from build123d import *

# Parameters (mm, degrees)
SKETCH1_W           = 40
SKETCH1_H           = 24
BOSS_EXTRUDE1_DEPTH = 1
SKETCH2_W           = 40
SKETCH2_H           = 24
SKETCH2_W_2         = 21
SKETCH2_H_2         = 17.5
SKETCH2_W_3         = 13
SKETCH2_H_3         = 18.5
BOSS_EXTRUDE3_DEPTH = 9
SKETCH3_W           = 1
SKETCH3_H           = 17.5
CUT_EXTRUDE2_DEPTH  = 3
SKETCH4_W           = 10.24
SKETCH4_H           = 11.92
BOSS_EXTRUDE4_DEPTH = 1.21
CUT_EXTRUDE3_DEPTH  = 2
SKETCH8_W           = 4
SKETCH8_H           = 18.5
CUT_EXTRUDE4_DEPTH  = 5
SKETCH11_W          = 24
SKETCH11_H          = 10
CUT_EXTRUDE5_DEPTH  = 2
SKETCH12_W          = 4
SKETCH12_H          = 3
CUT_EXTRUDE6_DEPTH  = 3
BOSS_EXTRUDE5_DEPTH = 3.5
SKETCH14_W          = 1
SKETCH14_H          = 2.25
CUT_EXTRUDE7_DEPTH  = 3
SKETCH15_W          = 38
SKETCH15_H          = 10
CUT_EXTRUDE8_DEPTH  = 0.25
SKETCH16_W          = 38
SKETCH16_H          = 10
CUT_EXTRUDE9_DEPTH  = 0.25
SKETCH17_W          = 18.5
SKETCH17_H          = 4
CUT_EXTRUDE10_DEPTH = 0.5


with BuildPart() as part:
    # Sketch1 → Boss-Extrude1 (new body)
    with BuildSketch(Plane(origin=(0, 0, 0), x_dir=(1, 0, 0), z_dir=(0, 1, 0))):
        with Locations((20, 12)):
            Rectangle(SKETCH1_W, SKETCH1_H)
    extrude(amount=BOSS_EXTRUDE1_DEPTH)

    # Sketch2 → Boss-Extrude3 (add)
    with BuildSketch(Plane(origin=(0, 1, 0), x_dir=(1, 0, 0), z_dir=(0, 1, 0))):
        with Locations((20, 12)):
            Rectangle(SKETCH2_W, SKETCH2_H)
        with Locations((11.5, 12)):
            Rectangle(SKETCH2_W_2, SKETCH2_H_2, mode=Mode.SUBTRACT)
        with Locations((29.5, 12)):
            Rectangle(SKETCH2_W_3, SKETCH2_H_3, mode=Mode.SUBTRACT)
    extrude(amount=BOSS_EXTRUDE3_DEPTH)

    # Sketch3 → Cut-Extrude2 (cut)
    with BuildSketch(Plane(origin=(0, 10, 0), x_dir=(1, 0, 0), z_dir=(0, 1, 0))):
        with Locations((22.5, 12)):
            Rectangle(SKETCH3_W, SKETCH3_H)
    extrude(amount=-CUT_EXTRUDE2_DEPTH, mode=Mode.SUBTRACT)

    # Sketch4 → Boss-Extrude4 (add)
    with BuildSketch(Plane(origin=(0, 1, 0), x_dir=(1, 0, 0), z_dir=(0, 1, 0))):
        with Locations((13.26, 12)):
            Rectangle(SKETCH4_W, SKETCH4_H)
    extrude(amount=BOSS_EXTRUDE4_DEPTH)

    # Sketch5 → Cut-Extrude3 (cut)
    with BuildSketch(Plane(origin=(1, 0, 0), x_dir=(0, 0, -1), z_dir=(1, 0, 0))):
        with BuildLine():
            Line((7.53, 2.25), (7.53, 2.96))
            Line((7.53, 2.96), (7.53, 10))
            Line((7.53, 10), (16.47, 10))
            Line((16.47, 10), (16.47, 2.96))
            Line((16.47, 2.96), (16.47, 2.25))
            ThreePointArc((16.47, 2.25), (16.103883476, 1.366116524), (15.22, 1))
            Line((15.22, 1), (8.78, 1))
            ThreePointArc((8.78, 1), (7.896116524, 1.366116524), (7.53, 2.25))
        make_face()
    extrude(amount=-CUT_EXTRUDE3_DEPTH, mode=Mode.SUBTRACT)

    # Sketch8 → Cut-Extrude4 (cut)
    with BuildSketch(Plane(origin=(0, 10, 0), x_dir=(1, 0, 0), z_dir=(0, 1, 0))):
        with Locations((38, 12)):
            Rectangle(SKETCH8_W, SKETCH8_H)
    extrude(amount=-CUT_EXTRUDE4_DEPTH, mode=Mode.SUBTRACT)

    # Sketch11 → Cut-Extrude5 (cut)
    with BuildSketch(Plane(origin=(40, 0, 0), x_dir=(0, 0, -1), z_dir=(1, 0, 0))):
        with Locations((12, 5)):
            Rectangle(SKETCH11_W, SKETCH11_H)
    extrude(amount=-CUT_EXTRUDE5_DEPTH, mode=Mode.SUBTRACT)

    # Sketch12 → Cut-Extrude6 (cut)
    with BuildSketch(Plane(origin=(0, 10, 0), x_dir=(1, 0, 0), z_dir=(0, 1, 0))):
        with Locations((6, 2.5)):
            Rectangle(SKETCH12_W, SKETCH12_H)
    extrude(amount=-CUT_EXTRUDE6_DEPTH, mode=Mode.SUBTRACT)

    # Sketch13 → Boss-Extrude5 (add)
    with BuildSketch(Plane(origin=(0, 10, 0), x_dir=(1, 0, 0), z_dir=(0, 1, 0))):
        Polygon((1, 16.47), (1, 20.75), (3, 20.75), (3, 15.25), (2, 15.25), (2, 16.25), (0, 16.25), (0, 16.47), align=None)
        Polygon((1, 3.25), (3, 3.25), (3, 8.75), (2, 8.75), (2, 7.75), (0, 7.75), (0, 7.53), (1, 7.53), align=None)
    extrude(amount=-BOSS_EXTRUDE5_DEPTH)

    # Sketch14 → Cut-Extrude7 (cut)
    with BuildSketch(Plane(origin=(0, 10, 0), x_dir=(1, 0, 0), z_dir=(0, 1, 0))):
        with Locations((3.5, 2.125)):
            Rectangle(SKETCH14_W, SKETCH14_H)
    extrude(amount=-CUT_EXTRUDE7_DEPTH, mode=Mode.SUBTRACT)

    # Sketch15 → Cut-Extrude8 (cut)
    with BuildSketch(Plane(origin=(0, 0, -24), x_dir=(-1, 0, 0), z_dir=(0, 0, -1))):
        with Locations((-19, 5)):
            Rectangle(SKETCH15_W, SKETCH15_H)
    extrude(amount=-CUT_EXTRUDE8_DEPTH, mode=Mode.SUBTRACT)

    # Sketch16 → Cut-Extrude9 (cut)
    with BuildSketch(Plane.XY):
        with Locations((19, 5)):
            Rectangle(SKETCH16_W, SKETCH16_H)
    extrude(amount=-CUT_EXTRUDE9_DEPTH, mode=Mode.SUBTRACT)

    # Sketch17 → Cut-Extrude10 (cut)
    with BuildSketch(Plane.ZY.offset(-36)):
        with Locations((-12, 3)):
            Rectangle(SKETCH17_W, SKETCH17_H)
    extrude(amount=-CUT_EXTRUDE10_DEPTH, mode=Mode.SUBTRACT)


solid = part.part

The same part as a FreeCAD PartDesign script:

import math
import FreeCAD as App
import Part
import Sketcher

V = App.Vector


def add_polygon(sketch, points):
    """Adds a closed chain of lines whose ends are joined by coincident constraints."""
    first, n = sketch.GeometryCount, len(points)
    for a, b in zip(points, points[1:] + points[:1]):
        sketch.addGeometry(Part.LineSegment(App.Vector(*a, 0), App.Vector(*b, 0)), False)
    for i in range(n):
        sketch.addConstraint(Sketcher.Constraint("Coincident", first + i, 2, first + (i + 1) % n, 1))

doc = App.newDocument("Part")
body = doc.addObject("PartDesign::Body", "Body")

# Sketch on XZ plane
sketch1 = body.newObject("Sketcher::SketchObject", "Sketch")
sketch1.AttachmentSupport = (doc.getObject("XZ_Plane"), [""])
sketch1.MapMode = "FlatFace"
add_polygon(sketch1, [(0, -24), (0, 0), (40, 0), (40, -24)])  # lines 0-3
sketch1.addConstraint([
    Sketcher.Constraint("Vertical", 0),
    Sketcher.Constraint("Horizontal", 1),
    Sketcher.Constraint("Vertical", 2),
    Sketcher.Constraint("Horizontal", 3),
    Sketcher.Constraint("Coincident", 0, 2, -1, 1),
    Sketcher.Constraint("DistanceX", 1, 1, 1, 2, 40.0),
    Sketcher.Constraint("DistanceY", 0, 1, 0, 2, 24.0),
])
pad1 = body.newObject("PartDesign::Pad", "Pad")
pad1.Profile = sketch1
pad1.Length = 1
pad1.Reversed = True

# Sketch on XZ plane
sketch2 = body.newObject("Sketcher::SketchObject", "Sketch001")
sketch2.AttachmentSupport = (doc.getObject("XZ_Plane"), [""])
sketch2.MapMode = "FlatFace"
sketch2.AttachmentOffset = App.Placement(V(0, 0, -1), App.Rotation())
add_polygon(sketch2, [(0, -24), (0, 0), (40, 0), (40, -24)])  # lines 0-3
add_polygon(sketch2, [(22, -3), (1, -3), (1, -21), (22, -21)])  # lines 4-7
add_polygon(sketch2, [(36, -3), (23, -3), (23, -21), (36, -21)])  # lines 8-11
sketch2.addConstraint([
    Sketcher.Constraint("Vertical", 0),
    Sketcher.Constraint("Horizontal", 1),
    Sketcher.Constraint("Vertical", 2),
    Sketcher.Constraint("Horizontal", 3),
    Sketcher.Constraint("Horizontal", 4),
    Sketcher.Constraint("Vertical", 5),
    Sketcher.Constraint("Horizontal", 6),
    Sketcher.Constraint("Vertical", 7),
    Sketcher.Constraint("Horizontal", 8),
    Sketcher.Constraint("Vertical", 9),
    Sketcher.Constraint("Horizontal", 10),
    Sketcher.Constraint("Vertical", 11),
    Sketcher.Constraint("Coincident", 0, 2, -1, 1),
    Sketcher.Constraint("DistanceX", 1, 1, 1, 2, 40.0),
    Sketcher.Constraint("DistanceX", 4, 2, 4, 1, 21.0),
    Sketcher.Constraint("DistanceX", 8, 2, 8, 1, 13.0),
    Sketcher.Constraint("DistanceY", 0, 1, 0, 2, 24.0),
    Sketcher.Constraint("DistanceY", 5, 2, 5, 1, 17.5),
    Sketcher.Constraint("DistanceY", 9, 2, 9, 1, 18.5),
    Sketcher.Constraint("DistanceX", -1, 1, 4, 2, 1.0),
    Sketcher.Constraint("DistanceX", -1, 1, 8, 2, 23.0),
    Sketcher.Constraint("DistanceY", 6, 2, 8, 2, 18.0),
    Sketcher.Constraint("DistanceY", 4, 2, -1, 1, 3.25),
])
pad2 = body.newObject("PartDesign::Pad", "Pad001")
pad2.Profile = sketch2
pad2.Length = 9
pad2.Reversed = True

# Sketch on XZ plane
sketch3 = body.newObject("Sketcher::SketchObject", "Sketch002")
sketch3.AttachmentSupport = (doc.getObject("XZ_Plane"), [""])
sketch3.MapMode = "FlatFace"
sketch3.AttachmentOffset = App.Placement(V(0, 0, -10), App.Rotation())
add_polygon(sketch3, [(22, -20.8), (22, -3.2), (23, -3.2), (23, -20.8)])  # lines 0-3
sketch3.addConstraint([
    Sketcher.Constraint("Vertical", 0),
    Sketcher.Constraint("Horizontal", 1),
    Sketcher.Constraint("Vertical", 2),
    Sketcher.Constraint("Horizontal", 3),
    Sketcher.Constraint("DistanceX", 1, 1, 1, 2, 1.0),
    Sketcher.Constraint("DistanceY", 0, 1, 0, 2, 17.5),
    Sketcher.Constraint("DistanceX", -1, 1, 0, 2, 22.0),
    Sketcher.Constraint("DistanceY", 0, 2, -1, 1, 3.25),
])
pocket1 = body.newObject("PartDesign::Pocket", "Pocket")
pocket1.Profile = sketch3
pocket1.Length = 3
pocket1.Reversed = True

# Sketch on XZ plane
sketch4 = body.newObject("Sketcher::SketchObject", "Sketch003")
sketch4.AttachmentSupport = (doc.getObject("XZ_Plane"), [""])
sketch4.MapMode = "FlatFace"
sketch4.AttachmentOffset = App.Placement(V(0, 0, -1), App.Rotation())
add_polygon(sketch4, [(8, -18), (8, -6), (18, -6), (18, -18)])  # lines 0-3
sketch4.addConstraint([
    Sketcher.Constraint("Vertical", 0),
    Sketcher.Constraint("Horizontal", 1),
    Sketcher.Constraint("Vertical", 2),
    Sketcher.Constraint("Horizontal", 3),
    Sketcher.Constraint("DistanceX", 1, 1, 1, 2, 10.24),
    Sketcher.Constraint("DistanceY", 0, 1, 0, 2, 11.92),
    Sketcher.Constraint("DistanceX", -1, 1, 0, 2, 8.14),
    Sketcher.Constraint("DistanceY", 0, 2, -1, 1, 6.04),
])
pad3 = body.newObject("PartDesign::Pad", "Pad002")
pad3.Profile = sketch4
pad3.Length = 1.21
pad3.Reversed = True

# Sketch on YZ plane
sketch5 = body.newObject("Sketcher::SketchObject", "Sketch004")
sketch5.AttachmentSupport = (doc.getObject("YZ_Plane"), [""])
sketch5.MapMode = "FlatFace"
sketch5.AttachmentOffset = App.Placement(V(0, 0, 1), App.Rotation())
sketch5.addGeometry([
    Part.LineSegment(V(10, -7.5, 0), V(2.2, -7.5, 0)),  # 0
    Part.ArcOfCircle(Part.Circle(V(2.3, -8.8, 0), V(0, 0, 1), 1.3), math.radians(90), math.radians(180)),  # 1
    Part.LineSegment(V(1, -8.8, 0), V(1, -15.2, 0)),  # 2
    Part.ArcOfCircle(Part.Circle(V(2.3, -15.2, 0), V(0, 0, 1), 1.3), math.radians(-180), math.radians(-90)),  # 3
    Part.LineSegment(V(2.2, -16.5, 0), V(10, -16.5, 0)),  # 4
    Part.LineSegment(V(10, -16.5, 0), V(10, -7.5, 0)),  # 5
], False)
sketch5.addConstraint([
    Sketcher.Constraint("Tangent", 0, 2, 1, 1),
    Sketcher.Constraint("Tangent", 1, 2, 2, 1),
    Sketcher.Constraint("Tangent", 2, 2, 3, 1),
    Sketcher.Constraint("Tangent", 3, 2, 4, 1),
    Sketcher.Constraint("Coincident", 4, 2, 5, 1),
    Sketcher.Constraint("Coincident", 5, 2, 0, 1),
    Sketcher.Constraint("Horizontal", 0),
    Sketcher.Constraint("Vertical", 2),
    Sketcher.Constraint("Horizontal", 4),
    Sketcher.Constraint("Vertical", 5),
    Sketcher.Constraint("Equal", 1, 3),
    Sketcher.Constraint("Radius", 1, 1.25),
    Sketcher.Constraint("DistanceX", -1, 1, 1, 2, 1.0),
    Sketcher.Constraint("DistanceX", -1, 1, 4, 2, 10.0),
    Sketcher.Constraint("DistanceY", 2, 2, 2, 1, 6.44),
    Sketcher.Constraint("DistanceY", 1, 3, -1, 1, 8.78),
])
pocket2 = body.newObject("PartDesign::Pocket", "Pocket001")
pocket2.Profile = sketch5
pocket2.Length = 2

# Sketch on XZ plane
sketch6 = body.newObject("Sketcher::SketchObject", "Sketch005")
sketch6.AttachmentSupport = (doc.getObject("XZ_Plane"), [""])
sketch6.MapMode = "FlatFace"
sketch6.AttachmentOffset = App.Placement(V(0, 0, -10), App.Rotation())
add_polygon(sketch6, [(36, -21.2), (36, -2.8), (40, -2.8), (40, -21.2)])  # lines 0-3
sketch6.addConstraint([
    Sketcher.Constraint("Vertical", 0),
    Sketcher.Constraint("Horizontal", 1),
    Sketcher.Constraint("Vertical", 2),
    Sketcher.Constraint("Horizontal", 3),
    Sketcher.Constraint("DistanceX", 1, 1, 1, 2, 4.0),
    Sketcher.Constraint("DistanceY", 0, 1, 0, 2, 18.5),
    Sketcher.Constraint("DistanceX", -1, 1, 0, 2, 36.0),
    Sketcher.Constraint("DistanceY", 0, 2, -1, 1, 2.75),
])
pocket3 = body.newObject("PartDesign::Pocket", "Pocket002")
pocket3.Profile = sketch6
pocket3.Length = 5
pocket3.Reversed = True

# Sketch on YZ plane
sketch7 = body.newObject("Sketcher::SketchObject", "Sketch006")
sketch7.AttachmentSupport = (doc.getObject("YZ_Plane"), [""])
sketch7.MapMode = "FlatFace"
sketch7.AttachmentOffset = App.Placement(V(0, 0, 40), App.Rotation())
add_polygon(sketch7, [(10, 0), (0, 0), (0, -24), (10, -24)])  # lines 0-3
sketch7.addConstraint([
    Sketcher.Constraint("Horizontal", 0),
    Sketcher.Constraint("Vertical", 1),
    Sketcher.Constraint("Horizontal", 2),
    Sketcher.Constraint("Vertical", 3),
    Sketcher.Constraint("Coincident", 0, 2, -1, 1),
    Sketcher.Constraint("DistanceX", 0, 2, 0, 1, 10.0),
    Sketcher.Constraint("DistanceY", 1, 2, 1, 1, 24.0),
])
pocket4 = body.newObject("PartDesign::Pocket", "Pocket003")
pocket4.Profile = sketch7
pocket4.Length = 2

# Sketch on XZ plane
sketch8 = body.newObject("Sketcher::SketchObject", "Sketch007")
sketch8.AttachmentSupport = (doc.getObject("XZ_Plane"), [""])
sketch8.MapMode = "FlatFace"
sketch8.AttachmentOffset = App.Placement(V(0, 0, -10), App.Rotation())
add_polygon(sketch8, [(4, -4), (4, -1), (8, -1), (8, -4)])  # lines 0-3
sketch8.addConstraint([
    Sketcher.Constraint("Vertical", 0),
    Sketcher.Constraint("Horizontal", 1),
    Sketcher.Constraint("Vertical", 2),
    Sketcher.Constraint("Horizontal", 3),
    Sketcher.Constraint("DistanceX", 1, 1, 1, 2, 4.0),
    Sketcher.Constraint("DistanceY", 0, 1, 0, 2, 3.0),
    Sketcher.Constraint("DistanceX", -1, 1, 0, 2, 4.0),
    Sketcher.Constraint("DistanceY", 0, 2, -1, 1, 1.0),
])
pocket5 = body.newObject("PartDesign::Pocket", "Pocket004")
pocket5.Profile = sketch8
pocket5.Length = 3
pocket5.Reversed = True

# Sketch on XZ plane
sketch9 = body.newObject("Sketcher::SketchObject", "Sketch008")
sketch9.AttachmentSupport = (doc.getObject("XZ_Plane"), [""])
sketch9.MapMode = "FlatFace"
sketch9.AttachmentOffset = App.Placement(V(0, 0, -10), App.Rotation())
add_polygon(sketch9, [(1, -20.75), (1, -16.47), (0, -16.47), (0, -16.25), (2, -16.25), (2, -15.25), (3, -15.25), (3, -20.75)])  # lines 0-7
add_polygon(sketch9, [(1, -3.25), (3, -3.25), (3, -8.75), (2, -8.75), (2, -7.75), (0, -7.75), (0, -7.53), (1, -7.53)])  # lines 8-15
sketch9.addConstraint([
    Sketcher.Constraint("Vertical", 0),
    Sketcher.Constraint("Horizontal", 1),
    Sketcher.Constraint("Vertical", 2),
    Sketcher.Constraint("Horizontal", 3),
    Sketcher.Constraint("Vertical", 4),
    Sketcher.Constraint("Horizontal", 5),
    Sketcher.Constraint("Vertical", 6),
    Sketcher.Constraint("Horizontal", 7),
    Sketcher.Constraint("Horizontal", 8),
    Sketcher.Constraint("Vertical", 9),
    Sketcher.Constraint("Horizontal", 10),
    Sketcher.Constraint("Vertical", 11),
    Sketcher.Constraint("Horizontal", 12),
    Sketcher.Constraint("Vertical", 13),
    Sketcher.Constraint("Horizontal", 14),
    Sketcher.Constraint("Vertical", 15),
    Sketcher.Constraint("PointOnObject", 1, 2, -2),
    Sketcher.Constraint("PointOnObject", 12, 2, -2),
    Sketcher.Constraint("Vertical", 6, 2, 8, 2),
    Sketcher.Constraint("Vertical", 4, 2, 10, 2),
    Sketcher.Constraint("Vertical", 7, 2, 14, 2),
    Sketcher.Constraint("Equal", 1, 5),
    Sketcher.Constraint("Equal", 14, 4),
    Sketcher.Constraint("Equal", 6, 9),
    Sketcher.Constraint("Equal", 4, 11),
    Sketcher.Constraint("Equal", 2, 13),
    Sketcher.Constraint("DistanceX", 1, 2, 1, 1, 1.0),
    Sketcher.Constraint("DistanceX", 3, 1, 3, 2, 2.0),
    Sketcher.Constraint("DistanceY", 6, 2, 6, 1, 5.5),
    Sketcher.Constraint("DistanceY", 5, 2, 8, 2, 12.0),
    Sketcher.Constraint("DistanceY", 0, 1, 0, 2, 4.28),
    Sketcher.Constraint("DistanceY", 0, 2, -1, 1, 16.47),
])
pad4 = body.newObject("PartDesign::Pad", "Pad003")
pad4.Profile = sketch9
pad4.Length = 3.5

# Sketch on XZ plane
sketch10 = body.newObject("Sketcher::SketchObject", "Sketch009")
sketch10.AttachmentSupport = (doc.getObject("XZ_Plane"), [""])
sketch10.MapMode = "FlatFace"
sketch10.AttachmentOffset = App.Placement(V(0, 0, -10), App.Rotation())
add_polygon(sketch10, [(3, -3.2), (3, -1), (4, -1), (4, -3.2)])  # lines 0-3
sketch10.addConstraint([
    Sketcher.Constraint("Vertical", 0),
    Sketcher.Constraint("Horizontal", 1),
    Sketcher.Constraint("Vertical", 2),
    Sketcher.Constraint("Horizontal", 3),
    Sketcher.Constraint("DistanceX", 1, 1, 1, 2, 1.0),
    Sketcher.Constraint("DistanceX", -1, 1, 0, 2, 3.0),
    Sketcher.Constraint("DistanceY", 0, 2, -1, 1, 1.0),
    Sketcher.Constraint("DistanceY", 0, 1, 0, 2, 2.25),
])
pocket6 = body.newObject("PartDesign::Pocket", "Pocket005")
pocket6.Profile = sketch10
pocket6.Length = 3
pocket6.Reversed = True

# Sketch on XY plane
sketch11 = body.newObject("Sketcher::SketchObject", "Sketch010")
sketch11.AttachmentSupport = (doc.getObject("XY_Plane"), [""])
sketch11.MapMode = "FlatFace"
sketch11.AttachmentOffset = App.Placement(V(0, 0, -24), App.Rotation())
add_polygon(sketch11, [(38, 10), (38, 0), (0, 0), (0, 10)])  # lines 0-3
sketch11.addConstraint([
    Sketcher.Constraint("Vertical", 0),
    Sketcher.Constraint("Horizontal", 1),
    Sketcher.Constraint("Vertical", 2),
    Sketcher.Constraint("Horizontal", 3),
    Sketcher.Constraint("Coincident", 1, 2, -1, 1),
    Sketcher.Constraint("DistanceX", 1, 2, 1, 1, 38.0),
    Sketcher.Constraint("DistanceY", 0, 2, 0, 1, 10.0),
])
pocket7 = body.newObject("PartDesign::Pocket", "Pocket006")
pocket7.Profile = sketch11
pocket7.Length = 0.25
pocket7.Reversed = True

# Sketch on XY plane
sketch12 = body.newObject("Sketcher::SketchObject", "Sketch011")
sketch12.AttachmentSupport = (doc.getObject("XY_Plane"), [""])
sketch12.MapMode = "FlatFace"
add_polygon(sketch12, [(0, 10), (0, 0), (38, 0), (38, 10)])  # lines 0-3
sketch12.addConstraint([
    Sketcher.Constraint("Vertical", 0),
    Sketcher.Constraint("Horizontal", 1),
    Sketcher.Constraint("Vertical", 2),
    Sketcher.Constraint("Horizontal", 3),
    Sketcher.Constraint("Coincident", 0, 2, -1, 1),
    Sketcher.Constraint("DistanceX", 1, 1, 1, 2, 38.0),
    Sketcher.Constraint("DistanceY", 0, 2, 0, 1, 10.0),
])
pocket8 = body.newObject("PartDesign::Pocket", "Pocket007")
pocket8.Profile = sketch12
pocket8.Length = 0.25

# Sketch on YZ plane
sketch13 = body.newObject("Sketcher::SketchObject", "Sketch012")
sketch13.AttachmentSupport = (doc.getObject("YZ_Plane"), [""])
sketch13.MapMode = "FlatFace"
sketch13.AttachmentOffset = App.Placement(V(0, 0, 36), App.Rotation())
add_polygon(sketch13, [(5, -21.2), (1, -21.2), (1, -2.8), (5, -2.8)])  # lines 0-3
sketch13.addConstraint([
    Sketcher.Constraint("Horizontal", 0),
    Sketcher.Constraint("Vertical", 1),
    Sketcher.Constraint("Horizontal", 2),
    Sketcher.Constraint("Vertical", 3),
    Sketcher.Constraint("DistanceX", 0, 2, 0, 1, 4.0),
    Sketcher.Constraint("DistanceY", 1, 1, 1, 2, 18.5),
    Sketcher.Constraint("DistanceX", -1, 1, 0, 2, 1.0),
    Sketcher.Constraint("DistanceY", 0, 2, -1, 1, 21.25),
])
pocket9 = body.newObject("PartDesign::Pocket", "Pocket008")
pocket9.Profile = sketch13
pocket9.Length = 0.5
pocket9.Reversed = True

doc.recompute()
